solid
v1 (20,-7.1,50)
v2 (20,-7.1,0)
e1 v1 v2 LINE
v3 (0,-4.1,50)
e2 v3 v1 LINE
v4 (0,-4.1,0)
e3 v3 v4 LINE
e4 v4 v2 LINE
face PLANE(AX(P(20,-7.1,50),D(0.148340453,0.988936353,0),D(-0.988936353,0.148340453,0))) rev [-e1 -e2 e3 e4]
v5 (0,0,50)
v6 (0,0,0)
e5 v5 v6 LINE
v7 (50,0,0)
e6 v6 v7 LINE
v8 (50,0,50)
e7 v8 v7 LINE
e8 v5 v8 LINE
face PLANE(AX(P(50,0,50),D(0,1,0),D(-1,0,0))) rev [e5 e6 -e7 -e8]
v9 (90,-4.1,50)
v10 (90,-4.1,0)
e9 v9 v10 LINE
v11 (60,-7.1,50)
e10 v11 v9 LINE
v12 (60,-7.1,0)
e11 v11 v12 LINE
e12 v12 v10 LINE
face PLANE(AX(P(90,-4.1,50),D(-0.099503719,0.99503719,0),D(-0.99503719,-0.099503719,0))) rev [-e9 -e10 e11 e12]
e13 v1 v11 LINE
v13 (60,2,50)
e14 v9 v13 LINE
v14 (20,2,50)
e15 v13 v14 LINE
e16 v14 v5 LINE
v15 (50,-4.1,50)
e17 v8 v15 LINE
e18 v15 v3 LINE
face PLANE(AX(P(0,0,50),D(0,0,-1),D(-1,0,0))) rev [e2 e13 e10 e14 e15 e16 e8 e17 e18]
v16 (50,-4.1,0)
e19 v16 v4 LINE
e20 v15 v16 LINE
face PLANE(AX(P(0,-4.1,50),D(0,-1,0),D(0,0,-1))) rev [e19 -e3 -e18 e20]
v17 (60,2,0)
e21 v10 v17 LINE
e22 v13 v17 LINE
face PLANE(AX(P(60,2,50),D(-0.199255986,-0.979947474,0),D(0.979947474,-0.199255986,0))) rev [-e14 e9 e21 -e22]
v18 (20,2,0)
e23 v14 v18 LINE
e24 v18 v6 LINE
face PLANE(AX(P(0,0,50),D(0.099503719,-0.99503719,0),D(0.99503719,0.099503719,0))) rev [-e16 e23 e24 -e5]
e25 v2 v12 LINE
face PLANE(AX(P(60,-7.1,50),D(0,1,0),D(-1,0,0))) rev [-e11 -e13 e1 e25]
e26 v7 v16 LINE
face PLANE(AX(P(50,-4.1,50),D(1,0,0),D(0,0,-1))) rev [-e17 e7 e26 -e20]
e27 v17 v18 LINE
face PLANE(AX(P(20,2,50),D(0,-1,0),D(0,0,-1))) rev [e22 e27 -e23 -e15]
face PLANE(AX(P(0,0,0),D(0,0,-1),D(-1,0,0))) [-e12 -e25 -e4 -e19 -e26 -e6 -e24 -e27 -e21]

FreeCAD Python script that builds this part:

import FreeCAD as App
import Part
import Sketcher
from FreeCAD import Vector
Q = App.Units.Quantity

doc = App.newDocument("Part")
body = doc.addObject("PartDesign::Body", "Body")

# Sketch on XY plane
sketch1 = doc.addObject("Sketcher::SketchObject", "Sketch")
body.addObject(sketch1)
sketch1.AttachmentSupport = (doc.XY_Plane, [""])
sketch1.MapMode = "FlatFace"
sketch1.addGeometry([
    Part.LineSegment(Vector(20, 2, 0), Vector(0, 0, 0)),  # 0
    Part.LineSegment(Vector(0, 0, 0), Vector(50, 0, 0)),  # 1
    Part.LineSegment(Vector(50, 0, 0), Vector(50, -4.1, 0)),  # 2
    Part.LineSegment(Vector(50, -4.1, 0), Vector(0, -4.1, 0)),  # 3
    Part.LineSegment(Vector(0, -4.1, 0), Vector(20, -7.1, 0)),  # 4
    Part.LineSegment(Vector(20, -7.1, 0), Vector(60, -7.1, 0)),  # 5
    Part.LineSegment(Vector(60, -7.1, 0), Vector(90, -4.1, 0)),  # 6
    Part.LineSegment(Vector(90, -4.1, 0), Vector(60, 2, 0)),  # 7
    Part.LineSegment(Vector(60, 2, 0), Vector(20, 2, 0)),  # 8
], False)
sketch1.addConstraint([
    Sketcher.Constraint("Coincident", 0, 2, 1, 1),
    Sketcher.Constraint("Coincident", 1, 2, 2, 1),
    Sketcher.Constraint("Coincident", 2, 2, 3, 1),
    Sketcher.Constraint("Coincident", 3, 2, 4, 1),
    Sketcher.Constraint("Coincident", 4, 2, 5, 1),
    Sketcher.Constraint("Coincident", 5, 2, 6, 1),
    Sketcher.Constraint("Coincident", 6, 2, 7, 1),
    Sketcher.Constraint("Coincident", 7, 2, 8, 1),
    Sketcher.Constraint("Coincident", 8, 2, 0, 1),
    Sketcher.Constraint("Horizontal", 1),
    Sketcher.Constraint("Vertical", 2),
    Sketcher.Constraint("Horizontal", 3),
    Sketcher.Constraint("Horizontal", 5),
    Sketcher.Constraint("Horizontal", 8),
    Sketcher.Constraint("Coincident", 0, 2, -1, 1),
    Sketcher.Constraint("PointOnObject", 3, 2, -2),
    Sketcher.Constraint("Parallel", 0, 6),
    Sketcher.Constraint("Horizontal", 3, 2, 6, 2),
    Sketcher.Constraint("Vertical", 5, 2, 7, 2),
    Sketcher.Constraint("Vertical", 4, 2, 8, 2),
    Sketcher.Constraint("DistanceX", 1, 1, 1, 2, Q("50 mm")),
    Sketcher.Constraint("DistanceX", 5, 1, 5, 2, Q("40 mm")),
    Sketcher.Constraint("DistanceY", 2, 2, 2, 1, Q("4.1 mm")),
    Sketcher.Constraint("DistanceX", -1, 1, 4, 2, Q("20 mm")),
    Sketcher.Constraint("DistanceX", -1, 1, 6, 2, Q("90 mm")),
    Sketcher.Constraint("DistanceY", -1, 1, 7, 2, Q("2 mm")),
])
pad1 = doc.addObject("PartDesign::Pad", "Pad")
body.addObject(pad1)
pad1.Profile = sketch1
pad1.Length = 50

doc.recompute()
